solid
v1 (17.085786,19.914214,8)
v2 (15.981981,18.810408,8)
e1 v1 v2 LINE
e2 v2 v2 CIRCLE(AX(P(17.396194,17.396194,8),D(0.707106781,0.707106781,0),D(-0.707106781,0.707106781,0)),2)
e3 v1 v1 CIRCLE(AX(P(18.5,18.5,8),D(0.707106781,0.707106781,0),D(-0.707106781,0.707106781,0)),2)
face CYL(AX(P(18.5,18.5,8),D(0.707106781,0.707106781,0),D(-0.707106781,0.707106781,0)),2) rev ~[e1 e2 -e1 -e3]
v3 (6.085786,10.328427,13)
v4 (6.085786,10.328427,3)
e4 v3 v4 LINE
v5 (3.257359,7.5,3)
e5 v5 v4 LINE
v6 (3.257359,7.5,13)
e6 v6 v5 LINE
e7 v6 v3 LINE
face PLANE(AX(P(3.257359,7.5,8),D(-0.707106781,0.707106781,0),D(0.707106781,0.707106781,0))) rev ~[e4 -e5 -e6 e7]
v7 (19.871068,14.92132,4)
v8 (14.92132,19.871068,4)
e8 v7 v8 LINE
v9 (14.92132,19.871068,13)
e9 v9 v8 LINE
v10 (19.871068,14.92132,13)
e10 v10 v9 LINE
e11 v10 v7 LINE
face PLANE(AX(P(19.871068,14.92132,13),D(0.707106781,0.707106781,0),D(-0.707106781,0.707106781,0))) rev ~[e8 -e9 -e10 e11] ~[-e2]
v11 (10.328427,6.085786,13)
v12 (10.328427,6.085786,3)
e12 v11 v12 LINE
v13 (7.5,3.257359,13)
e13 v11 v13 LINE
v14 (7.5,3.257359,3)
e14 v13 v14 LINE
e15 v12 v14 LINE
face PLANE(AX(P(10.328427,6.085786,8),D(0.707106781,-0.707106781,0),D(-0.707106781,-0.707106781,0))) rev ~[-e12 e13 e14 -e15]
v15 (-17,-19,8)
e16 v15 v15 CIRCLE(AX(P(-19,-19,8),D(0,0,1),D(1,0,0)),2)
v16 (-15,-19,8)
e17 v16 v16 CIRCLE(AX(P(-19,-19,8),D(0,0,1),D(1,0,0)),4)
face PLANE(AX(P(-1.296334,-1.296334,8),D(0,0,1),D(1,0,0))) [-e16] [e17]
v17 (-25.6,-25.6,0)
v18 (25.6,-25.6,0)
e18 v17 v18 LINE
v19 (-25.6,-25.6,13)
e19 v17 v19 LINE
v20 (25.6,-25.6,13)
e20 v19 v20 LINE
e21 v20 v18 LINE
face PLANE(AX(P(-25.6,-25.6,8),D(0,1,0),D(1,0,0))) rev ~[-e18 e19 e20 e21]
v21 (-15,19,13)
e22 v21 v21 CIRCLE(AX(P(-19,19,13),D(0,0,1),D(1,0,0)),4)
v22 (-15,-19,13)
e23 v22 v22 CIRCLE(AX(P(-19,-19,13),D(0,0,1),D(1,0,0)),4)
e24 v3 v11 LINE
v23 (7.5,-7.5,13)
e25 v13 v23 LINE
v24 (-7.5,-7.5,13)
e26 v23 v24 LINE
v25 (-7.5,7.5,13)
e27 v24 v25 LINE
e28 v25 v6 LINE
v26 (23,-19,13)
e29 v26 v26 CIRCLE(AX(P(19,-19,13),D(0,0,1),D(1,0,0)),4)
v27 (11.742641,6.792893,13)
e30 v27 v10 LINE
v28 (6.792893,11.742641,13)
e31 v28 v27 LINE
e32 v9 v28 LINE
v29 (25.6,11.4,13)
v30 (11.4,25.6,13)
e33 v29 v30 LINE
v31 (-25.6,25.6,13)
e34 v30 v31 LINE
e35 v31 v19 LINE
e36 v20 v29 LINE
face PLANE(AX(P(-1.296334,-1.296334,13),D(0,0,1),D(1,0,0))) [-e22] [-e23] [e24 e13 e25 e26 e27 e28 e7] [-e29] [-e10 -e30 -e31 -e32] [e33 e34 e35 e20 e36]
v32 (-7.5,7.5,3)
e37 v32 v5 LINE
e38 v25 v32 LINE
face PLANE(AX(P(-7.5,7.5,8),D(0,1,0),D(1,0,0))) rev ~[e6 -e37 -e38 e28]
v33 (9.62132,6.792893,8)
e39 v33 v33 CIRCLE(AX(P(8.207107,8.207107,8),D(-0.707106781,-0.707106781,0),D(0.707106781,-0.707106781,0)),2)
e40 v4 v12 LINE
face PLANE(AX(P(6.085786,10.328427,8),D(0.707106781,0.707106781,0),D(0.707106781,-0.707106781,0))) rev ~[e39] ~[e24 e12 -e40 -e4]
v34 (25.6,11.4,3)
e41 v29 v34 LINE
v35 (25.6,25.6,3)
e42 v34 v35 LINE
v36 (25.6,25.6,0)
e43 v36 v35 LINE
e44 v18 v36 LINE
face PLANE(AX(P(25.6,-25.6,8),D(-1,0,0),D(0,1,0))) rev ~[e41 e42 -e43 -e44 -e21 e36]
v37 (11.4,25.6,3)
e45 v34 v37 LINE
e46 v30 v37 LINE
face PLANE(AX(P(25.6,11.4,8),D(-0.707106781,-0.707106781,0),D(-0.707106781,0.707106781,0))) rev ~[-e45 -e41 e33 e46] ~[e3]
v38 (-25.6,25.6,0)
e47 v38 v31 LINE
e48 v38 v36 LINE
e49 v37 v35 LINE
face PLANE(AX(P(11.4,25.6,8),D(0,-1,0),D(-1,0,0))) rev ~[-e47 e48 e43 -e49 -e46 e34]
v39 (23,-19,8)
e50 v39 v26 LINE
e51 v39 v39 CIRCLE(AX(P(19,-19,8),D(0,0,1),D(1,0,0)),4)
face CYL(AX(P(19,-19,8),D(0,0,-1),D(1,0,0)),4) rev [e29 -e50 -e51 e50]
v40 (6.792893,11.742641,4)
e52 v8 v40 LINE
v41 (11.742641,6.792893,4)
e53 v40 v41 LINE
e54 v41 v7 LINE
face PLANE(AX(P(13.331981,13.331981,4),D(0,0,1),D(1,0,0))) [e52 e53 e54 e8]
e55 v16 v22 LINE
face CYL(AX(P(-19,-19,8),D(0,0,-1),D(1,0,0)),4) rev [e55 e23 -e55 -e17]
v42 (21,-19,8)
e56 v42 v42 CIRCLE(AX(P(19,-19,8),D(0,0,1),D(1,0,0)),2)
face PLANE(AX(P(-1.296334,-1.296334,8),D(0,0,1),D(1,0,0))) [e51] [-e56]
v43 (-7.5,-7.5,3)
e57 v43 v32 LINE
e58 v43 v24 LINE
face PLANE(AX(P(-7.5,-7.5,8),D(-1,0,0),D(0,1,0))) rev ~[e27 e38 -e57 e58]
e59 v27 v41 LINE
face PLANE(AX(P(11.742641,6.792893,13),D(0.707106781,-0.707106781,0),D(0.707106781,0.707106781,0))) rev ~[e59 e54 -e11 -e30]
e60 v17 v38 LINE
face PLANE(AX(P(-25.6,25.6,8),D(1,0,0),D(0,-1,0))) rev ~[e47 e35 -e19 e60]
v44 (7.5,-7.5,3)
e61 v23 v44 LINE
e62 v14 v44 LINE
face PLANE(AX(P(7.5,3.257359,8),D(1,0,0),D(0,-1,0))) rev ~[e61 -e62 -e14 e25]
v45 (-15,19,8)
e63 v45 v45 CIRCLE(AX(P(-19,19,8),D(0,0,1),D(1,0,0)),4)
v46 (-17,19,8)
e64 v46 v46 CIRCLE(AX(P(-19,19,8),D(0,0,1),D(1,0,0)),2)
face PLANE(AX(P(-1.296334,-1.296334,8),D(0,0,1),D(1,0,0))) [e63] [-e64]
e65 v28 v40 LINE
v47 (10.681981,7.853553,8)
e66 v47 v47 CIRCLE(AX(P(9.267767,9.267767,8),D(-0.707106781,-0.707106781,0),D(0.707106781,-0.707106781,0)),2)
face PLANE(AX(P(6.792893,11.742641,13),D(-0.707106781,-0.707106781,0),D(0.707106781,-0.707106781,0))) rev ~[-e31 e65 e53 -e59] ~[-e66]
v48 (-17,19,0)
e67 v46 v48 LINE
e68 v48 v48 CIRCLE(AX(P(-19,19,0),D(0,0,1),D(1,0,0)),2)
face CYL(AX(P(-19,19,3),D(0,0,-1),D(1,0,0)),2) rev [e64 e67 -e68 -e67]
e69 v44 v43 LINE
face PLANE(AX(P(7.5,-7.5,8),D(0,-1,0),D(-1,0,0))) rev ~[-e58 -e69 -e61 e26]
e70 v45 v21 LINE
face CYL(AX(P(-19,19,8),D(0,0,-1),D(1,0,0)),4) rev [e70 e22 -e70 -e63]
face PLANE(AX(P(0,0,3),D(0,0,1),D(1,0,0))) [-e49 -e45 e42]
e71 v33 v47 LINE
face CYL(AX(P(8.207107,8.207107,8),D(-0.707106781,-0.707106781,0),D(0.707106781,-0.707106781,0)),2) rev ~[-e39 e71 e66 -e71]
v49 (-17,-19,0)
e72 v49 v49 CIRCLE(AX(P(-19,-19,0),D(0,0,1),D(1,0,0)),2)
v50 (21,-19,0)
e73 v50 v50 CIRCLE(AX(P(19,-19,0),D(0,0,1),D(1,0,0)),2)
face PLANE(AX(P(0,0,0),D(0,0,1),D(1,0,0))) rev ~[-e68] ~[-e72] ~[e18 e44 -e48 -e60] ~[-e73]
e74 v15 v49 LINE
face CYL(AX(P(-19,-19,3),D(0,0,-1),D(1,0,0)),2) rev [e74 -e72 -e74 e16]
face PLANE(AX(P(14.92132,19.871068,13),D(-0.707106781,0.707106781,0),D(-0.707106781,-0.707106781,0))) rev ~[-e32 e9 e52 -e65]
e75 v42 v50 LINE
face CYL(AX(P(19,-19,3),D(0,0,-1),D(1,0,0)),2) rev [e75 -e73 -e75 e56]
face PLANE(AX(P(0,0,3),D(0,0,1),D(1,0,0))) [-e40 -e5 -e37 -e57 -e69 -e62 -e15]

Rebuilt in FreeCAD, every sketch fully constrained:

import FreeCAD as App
import Part
import Sketcher
from FreeCAD import Vector
Q = App.Units.Quantity


def add_polygon(sketch, points):
    """Adds a closed chain of lines whose ends are joined by coincident constraints."""
    first, n = sketch.GeometryCount, len(points)
    for a, b in zip(points, points[1:] + points[:1]):
        sketch.addGeometry(Part.LineSegment(App.Vector(*a, 0), App.Vector(*b, 0)), False)
    for i in range(n):
        sketch.addConstraint(Sketcher.Constraint("Coincident", first + i, 2, first + (i + 1) % n, 1))

doc = App.newDocument("Part")
body = doc.addObject("PartDesign::Body", "Body")

# Sketch on XY plane
sketch1 = body.newObject("Sketcher::SketchObject", "Sketch")
sketch1.AttachmentSupport = (doc.getObject("XY_Plane"), [""])
sketch1.MapMode = "FlatFace"
add_polygon(sketch1, [(-25.6, 25.6), (-25.6, -25.6), (25.6, -25.6), (25.6, 25.6)])  # lines 0-3
sketch1.addGeometry(Part.Circle(Vector(-19, -19, 0), Vector(0, 0, 1), 2), False)  # 4
sketch1.addGeometry(Part.Circle(Vector(19, -19, 0), Vector(0, 0, 1), 2), False)  # 5
sketch1.addGeometry(Part.Circle(Vector(-19, 19, 0), Vector(0, 0, 1), 2), False)  # 6
sketch1.addConstraint(Sketcher.Constraint("Vertical", 0))
sketch1.addConstraint(Sketcher.Constraint("Horizontal", 1))
sketch1.addConstraint(Sketcher.Constraint("Vertical", 2))
sketch1.addConstraint(Sketcher.Constraint("Horizontal", 3))
sketch1.addConstraint(Sketcher.Constraint("Equal", 4, 5))
sketch1.addConstraint(Sketcher.Constraint("Equal", 5, 6))
sketch1.addConstraint(Sketcher.Constraint("Symmetric", 5, 3, 6, 3, -1, 1))
sketch1.addConstraint(Sketcher.Constraint("Symmetric", 0, 2, 2, 2, -1, 1))
sketch1.addConstraint(Sketcher.Constraint("Symmetric", 4, 3, 5, 3, -2))
sketch1.addConstraint(Sketcher.Constraint("Equal", 3, 0))
sketch1.addConstraint(Sketcher.Constraint("Diameter", 4, 4.0))
sketch1.addConstraint(Sketcher.Constraint("DistanceX", 1, 1, 1, 2, 51.2))
sketch1.addConstraint(Sketcher.Constraint("DistanceX", 4, 3, -1, 1, 19.0))
sketch1.addConstraint(Sketcher.Constraint("DistanceY", 4, 3, -1, 1, 19.0))
pad1 = body.newObject("PartDesign::Pad", "Pad")
pad1.Profile = sketch1
pad1.Length = 3

# Sketch on XY plane
sketch2 = body.newObject("Sketcher::SketchObject", "Sketch001")
sketch2.AttachmentSupport = (doc.getObject("XY_Plane"), [""])
sketch2.MapMode = "FlatFace"
sketch2.AttachmentOffset = App.Placement(Vector(0, 0, 3), App.Rotation())
add_polygon(sketch2, [(11.4, 25.6), (-25.6, 25.6), (-25.6, -25.6), (25.6, -25.6), (25.6, 11.4)])  # lines 0-4
sketch2.addGeometry(Part.Circle(Vector(-19, -19, 0), Vector(0, 0, 1), 2), False)  # 5
sketch2.addGeometry(Part.Circle(Vector(19, -19, 0), Vector(0, 0, 1), 2), False)  # 6
sketch2.addGeometry(Part.Circle(Vector(-19, 19, 0), Vector(0, 0, 1), 2), False)  # 7
add_polygon(sketch2, [(7.5, -7.5), (-7.5, -7.5), (-7.5, 7.5), (3.3, 7.5), (6.1, 10.3), (10.3, 6.1), (7.5, 3.3)])  # lines 8-14
sketch2.addConstraint(Sketcher.Constraint("Horizontal", 0))
sketch2.addConstraint(Sketcher.Constraint("Vertical", 1))
sketch2.addConstraint(Sketcher.Constraint("Horizontal", 2))
sketch2.addConstraint(Sketcher.Constraint("Vertical", 3))
sketch2.addConstraint(Sketcher.Constraint("Horizontal", 8))
sketch2.addConstraint(Sketcher.Constraint("Vertical", 9))
sketch2.addConstraint(Sketcher.Constraint("Horizontal", 10))
sketch2.addConstraint(Sketcher.Constraint("Vertical", 14))
sketch2.addConstraint(Sketcher.Constraint("Equal", 5, 6))
sketch2.addConstraint(Sketcher.Constraint("Equal", 6, 7))
sketch2.addConstraint(Sketcher.Constraint("Symmetric", 6, 3, 7, 3, -1, 1))
sketch2.addConstraint(Sketcher.Constraint("Symmetric", 0, 2, 2, 2, -1, 1))
sketch2.addConstraint(Sketcher.Constraint("Symmetric", 9, 2, 14, 2, -1, 1))
sketch2.addConstraint(Sketcher.Constraint("Symmetric", 5, 3, 6, 3, -2))
sketch2.addConstraint(Sketcher.Constraint("Perpendicular", 4, 11))
sketch2.addConstraint(Sketcher.Constraint("Perpendicular", 11, 12))
sketch2.addConstraint(Sketcher.Constraint("Perpendicular", 12, 13))
sketch2.addConstraint(Sketcher.Constraint("Equal", 2, 1))
sketch2.addConstraint(Sketcher.Constraint("Equal", 0, 3))
sketch2.addConstraint(Sketcher.Constraint("Equal", 8, 9))
sketch2.addConstraint(Sketcher.Constraint("Equal", 10, 14))
sketch2.addConstraint(Sketcher.Constraint("Diameter", 5, 4.0))
sketch2.addConstraint(Sketcher.Constraint("DistanceX", 0, 2, 0, 1, 37.0))
sketch2.addConstraint(Sketcher.Constraint("DistanceX", 8, 2, 8, 1, 15.0))
sketch2.addConstraint(Sketcher.Constraint("Distance", 11, 4.0))
sketch2.addConstraint(Sketcher.Constraint("Distance", 12, 6.0))
sketch2.addConstraint(Sketcher.Constraint("DistanceX", 2, 1, 2, 2, 51.2))
sketch2.addConstraint(Sketcher.Constraint("DistanceX", 5, 3, -1, 1, 19.0))
sketch2.addConstraint(Sketcher.Constraint("DistanceY", 5, 3, -1, 1, 19.0))
pad2 = body.newObject("PartDesign::Pad", "Pad001")
pad2.Profile = sketch2
pad2.Length = 5

# Sketch on XY plane
sketch3 = body.newObject("Sketcher::SketchObject", "Sketch002")
sketch3.AttachmentSupport = (doc.getObject("XY_Plane"), [""])
sketch3.MapMode = "FlatFace"
sketch3.AttachmentOffset = App.Placement(Vector(0, 0, 8), App.Rotation())
add_polygon(sketch3, [(11.4, 25.6), (-25.6, 25.6), (-25.6, -25.6), (25.6, -25.6), (25.6, 11.4)])  # lines 0-4
sketch3.addGeometry(Part.Circle(Vector(-19, -19, 0), Vector(0, 0, 1), 4), False)  # 5
sketch3.addGeometry(Part.Circle(Vector(19, -19, 0), Vector(0, 0, 1), 4), False)  # 6
sketch3.addGeometry(Part.Circle(Vector(-19, 19, 0), Vector(0, 0, 1), 4), False)  # 7
add_polygon(sketch3, [(7.5, -7.5), (-7.5, -7.5), (-7.5, 7.5), (3.3, 7.5), (6.1, 10.3), (10.3, 6.1), (7.5, 3.3)])  # lines 8-14
sketch3.addConstraint(Sketcher.Constraint("Horizontal", 0))
sketch3.addConstraint(Sketcher.Constraint("Vertical", 1))
sketch3.addConstraint(Sketcher.Constraint("Horizontal", 2))
sketch3.addConstraint(Sketcher.Constraint("Vertical", 3))
sketch3.addConstraint(Sketcher.Constraint("Horizontal", 8))
sketch3.addConstraint(Sketcher.Constraint("Vertical", 9))
sketch3.addConstraint(Sketcher.Constraint("Horizontal", 10))
sketch3.addConstraint(Sketcher.Constraint("Vertical", 14))
sketch3.addConstraint(Sketcher.Constraint("Equal", 5, 6))
sketch3.addConstraint(Sketcher.Constraint("Equal", 6, 7))
sketch3.addConstraint(Sketcher.Constraint("Symmetric", 6, 3, 7, 3, -1, 1))
sketch3.addConstraint(Sketcher.Constraint("Symmetric", 0, 2, 2, 2, -1, 1))
sketch3.addConstraint(Sketcher.Constraint("Symmetric", 9, 2, 14, 2, -1, 1))
sketch3.addConstraint(Sketcher.Constraint("Symmetric", 5, 3, 6, 3, -2))
sketch3.addConstraint(Sketcher.Constraint("Perpendicular", 4, 11))
sketch3.addConstraint(Sketcher.Constraint("Perpendicular", 11, 12))
sketch3.addConstraint(Sketcher.Constraint("Perpendicular", 12, 13))
sketch3.addConstraint(Sketcher.Constraint("Equal", 2, 1))
sketch3.addConstraint(Sketcher.Constraint("Equal", 0, 3))
sketch3.addConstraint(Sketcher.Constraint("Equal", 8, 9))
sketch3.addConstraint(Sketcher.Constraint("Equal", 10, 14))
sketch3.addConstraint(Sketcher.Constraint("Diameter", 5, 8.0))
sketch3.addConstraint(Sketcher.Constraint("DistanceX", 0, 2, 0, 1, 37.0))
sketch3.addConstraint(Sketcher.Constraint("DistanceX", 8, 2, 8, 1, 15.0))
sketch3.addConstraint(Sketcher.Constraint("Distance", 11, 4.0))
sketch3.addConstraint(Sketcher.Constraint("Distance", 12, 6.0))
sketch3.addConstraint(Sketcher.Constraint("DistanceX", 2, 1, 2, 2, 51.2))
sketch3.addConstraint(Sketcher.Constraint("DistanceX", 5, 3, -1, 1, 19.0))
sketch3.addConstraint(Sketcher.Constraint("DistanceY", 5, 3, -1, 1, 19.0))
pad3 = body.newObject("PartDesign::Pad", "Pad002")
pad3.Profile = sketch3
pad3.Length = 5

# Sketch on an angled plane
sketch4 = body.newObject("Sketcher::SketchObject", "Sketch003")
sketch4.Placement = App.Placement(Vector(18.5, 18.5, 0), App.Rotation(Vector(-0.707106781, 0.707106781, 0), Vector(0, 0, 0.999999999), Vector(0.707106781, 0.707106781, 0), "ZXY"))
sketch4.addGeometry(Part.Circle(Vector(0, 8, 0), Vector(0, 0, 1), 2), False)
sketch4.addConstraint(Sketcher.Constraint("PointOnObject", 0, 3, -2))
sketch4.addConstraint(Sketcher.Constraint("Diameter", 0, 4.0))
sketch4.addConstraint(Sketcher.Constraint("DistanceY", -1, 1, 0, 3, 8.0))
pocket1 = body.newObject("PartDesign::Pocket", "Pocket")
pocket1.Profile = sketch4
pocket1.Length = 2

# Sketch on an angled plane
sketch5 = body.newObject("Sketcher::SketchObject", "Sketch004")
sketch5.Placement = App.Placement(Vector(17.085786, 17.085786, 0), App.Rotation(Vector(-0.707106781, 0.707106781, 0), Vector(0, 0, 0.999999999), Vector(0.707106781, 0.707106781, 0), "ZXY"))
sketch5.addGeometry(Part.Circle(Vector(0, 8, 0), Vector(0, 0, 1), 3.5), False)
sketch5.addConstraint(Sketcher.Constraint("PointOnObject", 0, 3, -2))
sketch5.addConstraint(Sketcher.Constraint("Diameter", 0, 7.0))
sketch5.addConstraint(Sketcher.Constraint("DistanceY", -1, 1, 0, 3, 8.0))
pocket2 = body.newObject("PartDesign::Pocket", "Pocket001")
pocket2.Profile = sketch5
pocket2.Length = 11

# Sketch on an angled plane
sketch6 = body.newObject("Sketcher::SketchObject", "Sketch005")
sketch6.Placement = App.Placement(Vector(8.207107, 8.207107, 0), App.Rotation(Vector(0.707106781, -0.707106781, 0), Vector(0, 0, 0.999999999), Vector(-0.707106781, -0.707106781, 0), "ZXY"))
sketch6.addGeometry(Part.Circle(Vector(0, 8, 0), Vector(0, 0, 1), 2), False)
sketch6.addConstraint(Sketcher.Constraint("PointOnObject", 0, 3, -2))
sketch6.addConstraint(Sketcher.Constraint("Diameter", 0, 4.0))
sketch6.addConstraint(Sketcher.Constraint("DistanceY", -1, 1, 0, 3, 8.0))
pocket3 = body.newObject("PartDesign::Pocket", "Pocket002")
pocket3.Profile = sketch6
pocket3.Length = 4

# Sketch on XY plane
sketch7 = body.newObject("Sketcher::SketchObject", "Sketch006")
sketch7.AttachmentSupport = (doc.getObject("XY_Plane"), [""])
sketch7.MapMode = "FlatFace"
sketch7.AttachmentOffset = App.Placement(Vector(0, 0, 13), App.Rotation())
add_polygon(sketch7, [(15, 20), (7, 12), (12, 7), (20, 15)])  # lines 0-3
sketch7.addConstraint(Sketcher.Constraint("Perpendicular", 0, 1))
sketch7.addConstraint(Sketcher.Constraint("Perpendicular", 1, 2))
sketch7.addConstraint(Sketcher.Constraint("Perpendicular", 2, 3))
sketch7.addConstraint(Sketcher.Constraint("Angle", 0, Q("-135 deg")))
sketch7.addConstraint(Sketcher.Constraint("Distance", 1, 7.0))
sketch7.addConstraint(Sketcher.Constraint("Distance", 0, 11.495332))
sketch7.addConstraint(Sketcher.Constraint("DistanceY", -1, 1, 0, 2, 11.742641))
sketch7.addConstraint(Sketcher.Constraint("DistanceX", -1, 1, 1, 2, 11.742641))
pocket4 = body.newObject("PartDesign::Pocket", "Pocket003")
pocket4.Profile = sketch7
pocket4.Length = 9

doc.recompute()
